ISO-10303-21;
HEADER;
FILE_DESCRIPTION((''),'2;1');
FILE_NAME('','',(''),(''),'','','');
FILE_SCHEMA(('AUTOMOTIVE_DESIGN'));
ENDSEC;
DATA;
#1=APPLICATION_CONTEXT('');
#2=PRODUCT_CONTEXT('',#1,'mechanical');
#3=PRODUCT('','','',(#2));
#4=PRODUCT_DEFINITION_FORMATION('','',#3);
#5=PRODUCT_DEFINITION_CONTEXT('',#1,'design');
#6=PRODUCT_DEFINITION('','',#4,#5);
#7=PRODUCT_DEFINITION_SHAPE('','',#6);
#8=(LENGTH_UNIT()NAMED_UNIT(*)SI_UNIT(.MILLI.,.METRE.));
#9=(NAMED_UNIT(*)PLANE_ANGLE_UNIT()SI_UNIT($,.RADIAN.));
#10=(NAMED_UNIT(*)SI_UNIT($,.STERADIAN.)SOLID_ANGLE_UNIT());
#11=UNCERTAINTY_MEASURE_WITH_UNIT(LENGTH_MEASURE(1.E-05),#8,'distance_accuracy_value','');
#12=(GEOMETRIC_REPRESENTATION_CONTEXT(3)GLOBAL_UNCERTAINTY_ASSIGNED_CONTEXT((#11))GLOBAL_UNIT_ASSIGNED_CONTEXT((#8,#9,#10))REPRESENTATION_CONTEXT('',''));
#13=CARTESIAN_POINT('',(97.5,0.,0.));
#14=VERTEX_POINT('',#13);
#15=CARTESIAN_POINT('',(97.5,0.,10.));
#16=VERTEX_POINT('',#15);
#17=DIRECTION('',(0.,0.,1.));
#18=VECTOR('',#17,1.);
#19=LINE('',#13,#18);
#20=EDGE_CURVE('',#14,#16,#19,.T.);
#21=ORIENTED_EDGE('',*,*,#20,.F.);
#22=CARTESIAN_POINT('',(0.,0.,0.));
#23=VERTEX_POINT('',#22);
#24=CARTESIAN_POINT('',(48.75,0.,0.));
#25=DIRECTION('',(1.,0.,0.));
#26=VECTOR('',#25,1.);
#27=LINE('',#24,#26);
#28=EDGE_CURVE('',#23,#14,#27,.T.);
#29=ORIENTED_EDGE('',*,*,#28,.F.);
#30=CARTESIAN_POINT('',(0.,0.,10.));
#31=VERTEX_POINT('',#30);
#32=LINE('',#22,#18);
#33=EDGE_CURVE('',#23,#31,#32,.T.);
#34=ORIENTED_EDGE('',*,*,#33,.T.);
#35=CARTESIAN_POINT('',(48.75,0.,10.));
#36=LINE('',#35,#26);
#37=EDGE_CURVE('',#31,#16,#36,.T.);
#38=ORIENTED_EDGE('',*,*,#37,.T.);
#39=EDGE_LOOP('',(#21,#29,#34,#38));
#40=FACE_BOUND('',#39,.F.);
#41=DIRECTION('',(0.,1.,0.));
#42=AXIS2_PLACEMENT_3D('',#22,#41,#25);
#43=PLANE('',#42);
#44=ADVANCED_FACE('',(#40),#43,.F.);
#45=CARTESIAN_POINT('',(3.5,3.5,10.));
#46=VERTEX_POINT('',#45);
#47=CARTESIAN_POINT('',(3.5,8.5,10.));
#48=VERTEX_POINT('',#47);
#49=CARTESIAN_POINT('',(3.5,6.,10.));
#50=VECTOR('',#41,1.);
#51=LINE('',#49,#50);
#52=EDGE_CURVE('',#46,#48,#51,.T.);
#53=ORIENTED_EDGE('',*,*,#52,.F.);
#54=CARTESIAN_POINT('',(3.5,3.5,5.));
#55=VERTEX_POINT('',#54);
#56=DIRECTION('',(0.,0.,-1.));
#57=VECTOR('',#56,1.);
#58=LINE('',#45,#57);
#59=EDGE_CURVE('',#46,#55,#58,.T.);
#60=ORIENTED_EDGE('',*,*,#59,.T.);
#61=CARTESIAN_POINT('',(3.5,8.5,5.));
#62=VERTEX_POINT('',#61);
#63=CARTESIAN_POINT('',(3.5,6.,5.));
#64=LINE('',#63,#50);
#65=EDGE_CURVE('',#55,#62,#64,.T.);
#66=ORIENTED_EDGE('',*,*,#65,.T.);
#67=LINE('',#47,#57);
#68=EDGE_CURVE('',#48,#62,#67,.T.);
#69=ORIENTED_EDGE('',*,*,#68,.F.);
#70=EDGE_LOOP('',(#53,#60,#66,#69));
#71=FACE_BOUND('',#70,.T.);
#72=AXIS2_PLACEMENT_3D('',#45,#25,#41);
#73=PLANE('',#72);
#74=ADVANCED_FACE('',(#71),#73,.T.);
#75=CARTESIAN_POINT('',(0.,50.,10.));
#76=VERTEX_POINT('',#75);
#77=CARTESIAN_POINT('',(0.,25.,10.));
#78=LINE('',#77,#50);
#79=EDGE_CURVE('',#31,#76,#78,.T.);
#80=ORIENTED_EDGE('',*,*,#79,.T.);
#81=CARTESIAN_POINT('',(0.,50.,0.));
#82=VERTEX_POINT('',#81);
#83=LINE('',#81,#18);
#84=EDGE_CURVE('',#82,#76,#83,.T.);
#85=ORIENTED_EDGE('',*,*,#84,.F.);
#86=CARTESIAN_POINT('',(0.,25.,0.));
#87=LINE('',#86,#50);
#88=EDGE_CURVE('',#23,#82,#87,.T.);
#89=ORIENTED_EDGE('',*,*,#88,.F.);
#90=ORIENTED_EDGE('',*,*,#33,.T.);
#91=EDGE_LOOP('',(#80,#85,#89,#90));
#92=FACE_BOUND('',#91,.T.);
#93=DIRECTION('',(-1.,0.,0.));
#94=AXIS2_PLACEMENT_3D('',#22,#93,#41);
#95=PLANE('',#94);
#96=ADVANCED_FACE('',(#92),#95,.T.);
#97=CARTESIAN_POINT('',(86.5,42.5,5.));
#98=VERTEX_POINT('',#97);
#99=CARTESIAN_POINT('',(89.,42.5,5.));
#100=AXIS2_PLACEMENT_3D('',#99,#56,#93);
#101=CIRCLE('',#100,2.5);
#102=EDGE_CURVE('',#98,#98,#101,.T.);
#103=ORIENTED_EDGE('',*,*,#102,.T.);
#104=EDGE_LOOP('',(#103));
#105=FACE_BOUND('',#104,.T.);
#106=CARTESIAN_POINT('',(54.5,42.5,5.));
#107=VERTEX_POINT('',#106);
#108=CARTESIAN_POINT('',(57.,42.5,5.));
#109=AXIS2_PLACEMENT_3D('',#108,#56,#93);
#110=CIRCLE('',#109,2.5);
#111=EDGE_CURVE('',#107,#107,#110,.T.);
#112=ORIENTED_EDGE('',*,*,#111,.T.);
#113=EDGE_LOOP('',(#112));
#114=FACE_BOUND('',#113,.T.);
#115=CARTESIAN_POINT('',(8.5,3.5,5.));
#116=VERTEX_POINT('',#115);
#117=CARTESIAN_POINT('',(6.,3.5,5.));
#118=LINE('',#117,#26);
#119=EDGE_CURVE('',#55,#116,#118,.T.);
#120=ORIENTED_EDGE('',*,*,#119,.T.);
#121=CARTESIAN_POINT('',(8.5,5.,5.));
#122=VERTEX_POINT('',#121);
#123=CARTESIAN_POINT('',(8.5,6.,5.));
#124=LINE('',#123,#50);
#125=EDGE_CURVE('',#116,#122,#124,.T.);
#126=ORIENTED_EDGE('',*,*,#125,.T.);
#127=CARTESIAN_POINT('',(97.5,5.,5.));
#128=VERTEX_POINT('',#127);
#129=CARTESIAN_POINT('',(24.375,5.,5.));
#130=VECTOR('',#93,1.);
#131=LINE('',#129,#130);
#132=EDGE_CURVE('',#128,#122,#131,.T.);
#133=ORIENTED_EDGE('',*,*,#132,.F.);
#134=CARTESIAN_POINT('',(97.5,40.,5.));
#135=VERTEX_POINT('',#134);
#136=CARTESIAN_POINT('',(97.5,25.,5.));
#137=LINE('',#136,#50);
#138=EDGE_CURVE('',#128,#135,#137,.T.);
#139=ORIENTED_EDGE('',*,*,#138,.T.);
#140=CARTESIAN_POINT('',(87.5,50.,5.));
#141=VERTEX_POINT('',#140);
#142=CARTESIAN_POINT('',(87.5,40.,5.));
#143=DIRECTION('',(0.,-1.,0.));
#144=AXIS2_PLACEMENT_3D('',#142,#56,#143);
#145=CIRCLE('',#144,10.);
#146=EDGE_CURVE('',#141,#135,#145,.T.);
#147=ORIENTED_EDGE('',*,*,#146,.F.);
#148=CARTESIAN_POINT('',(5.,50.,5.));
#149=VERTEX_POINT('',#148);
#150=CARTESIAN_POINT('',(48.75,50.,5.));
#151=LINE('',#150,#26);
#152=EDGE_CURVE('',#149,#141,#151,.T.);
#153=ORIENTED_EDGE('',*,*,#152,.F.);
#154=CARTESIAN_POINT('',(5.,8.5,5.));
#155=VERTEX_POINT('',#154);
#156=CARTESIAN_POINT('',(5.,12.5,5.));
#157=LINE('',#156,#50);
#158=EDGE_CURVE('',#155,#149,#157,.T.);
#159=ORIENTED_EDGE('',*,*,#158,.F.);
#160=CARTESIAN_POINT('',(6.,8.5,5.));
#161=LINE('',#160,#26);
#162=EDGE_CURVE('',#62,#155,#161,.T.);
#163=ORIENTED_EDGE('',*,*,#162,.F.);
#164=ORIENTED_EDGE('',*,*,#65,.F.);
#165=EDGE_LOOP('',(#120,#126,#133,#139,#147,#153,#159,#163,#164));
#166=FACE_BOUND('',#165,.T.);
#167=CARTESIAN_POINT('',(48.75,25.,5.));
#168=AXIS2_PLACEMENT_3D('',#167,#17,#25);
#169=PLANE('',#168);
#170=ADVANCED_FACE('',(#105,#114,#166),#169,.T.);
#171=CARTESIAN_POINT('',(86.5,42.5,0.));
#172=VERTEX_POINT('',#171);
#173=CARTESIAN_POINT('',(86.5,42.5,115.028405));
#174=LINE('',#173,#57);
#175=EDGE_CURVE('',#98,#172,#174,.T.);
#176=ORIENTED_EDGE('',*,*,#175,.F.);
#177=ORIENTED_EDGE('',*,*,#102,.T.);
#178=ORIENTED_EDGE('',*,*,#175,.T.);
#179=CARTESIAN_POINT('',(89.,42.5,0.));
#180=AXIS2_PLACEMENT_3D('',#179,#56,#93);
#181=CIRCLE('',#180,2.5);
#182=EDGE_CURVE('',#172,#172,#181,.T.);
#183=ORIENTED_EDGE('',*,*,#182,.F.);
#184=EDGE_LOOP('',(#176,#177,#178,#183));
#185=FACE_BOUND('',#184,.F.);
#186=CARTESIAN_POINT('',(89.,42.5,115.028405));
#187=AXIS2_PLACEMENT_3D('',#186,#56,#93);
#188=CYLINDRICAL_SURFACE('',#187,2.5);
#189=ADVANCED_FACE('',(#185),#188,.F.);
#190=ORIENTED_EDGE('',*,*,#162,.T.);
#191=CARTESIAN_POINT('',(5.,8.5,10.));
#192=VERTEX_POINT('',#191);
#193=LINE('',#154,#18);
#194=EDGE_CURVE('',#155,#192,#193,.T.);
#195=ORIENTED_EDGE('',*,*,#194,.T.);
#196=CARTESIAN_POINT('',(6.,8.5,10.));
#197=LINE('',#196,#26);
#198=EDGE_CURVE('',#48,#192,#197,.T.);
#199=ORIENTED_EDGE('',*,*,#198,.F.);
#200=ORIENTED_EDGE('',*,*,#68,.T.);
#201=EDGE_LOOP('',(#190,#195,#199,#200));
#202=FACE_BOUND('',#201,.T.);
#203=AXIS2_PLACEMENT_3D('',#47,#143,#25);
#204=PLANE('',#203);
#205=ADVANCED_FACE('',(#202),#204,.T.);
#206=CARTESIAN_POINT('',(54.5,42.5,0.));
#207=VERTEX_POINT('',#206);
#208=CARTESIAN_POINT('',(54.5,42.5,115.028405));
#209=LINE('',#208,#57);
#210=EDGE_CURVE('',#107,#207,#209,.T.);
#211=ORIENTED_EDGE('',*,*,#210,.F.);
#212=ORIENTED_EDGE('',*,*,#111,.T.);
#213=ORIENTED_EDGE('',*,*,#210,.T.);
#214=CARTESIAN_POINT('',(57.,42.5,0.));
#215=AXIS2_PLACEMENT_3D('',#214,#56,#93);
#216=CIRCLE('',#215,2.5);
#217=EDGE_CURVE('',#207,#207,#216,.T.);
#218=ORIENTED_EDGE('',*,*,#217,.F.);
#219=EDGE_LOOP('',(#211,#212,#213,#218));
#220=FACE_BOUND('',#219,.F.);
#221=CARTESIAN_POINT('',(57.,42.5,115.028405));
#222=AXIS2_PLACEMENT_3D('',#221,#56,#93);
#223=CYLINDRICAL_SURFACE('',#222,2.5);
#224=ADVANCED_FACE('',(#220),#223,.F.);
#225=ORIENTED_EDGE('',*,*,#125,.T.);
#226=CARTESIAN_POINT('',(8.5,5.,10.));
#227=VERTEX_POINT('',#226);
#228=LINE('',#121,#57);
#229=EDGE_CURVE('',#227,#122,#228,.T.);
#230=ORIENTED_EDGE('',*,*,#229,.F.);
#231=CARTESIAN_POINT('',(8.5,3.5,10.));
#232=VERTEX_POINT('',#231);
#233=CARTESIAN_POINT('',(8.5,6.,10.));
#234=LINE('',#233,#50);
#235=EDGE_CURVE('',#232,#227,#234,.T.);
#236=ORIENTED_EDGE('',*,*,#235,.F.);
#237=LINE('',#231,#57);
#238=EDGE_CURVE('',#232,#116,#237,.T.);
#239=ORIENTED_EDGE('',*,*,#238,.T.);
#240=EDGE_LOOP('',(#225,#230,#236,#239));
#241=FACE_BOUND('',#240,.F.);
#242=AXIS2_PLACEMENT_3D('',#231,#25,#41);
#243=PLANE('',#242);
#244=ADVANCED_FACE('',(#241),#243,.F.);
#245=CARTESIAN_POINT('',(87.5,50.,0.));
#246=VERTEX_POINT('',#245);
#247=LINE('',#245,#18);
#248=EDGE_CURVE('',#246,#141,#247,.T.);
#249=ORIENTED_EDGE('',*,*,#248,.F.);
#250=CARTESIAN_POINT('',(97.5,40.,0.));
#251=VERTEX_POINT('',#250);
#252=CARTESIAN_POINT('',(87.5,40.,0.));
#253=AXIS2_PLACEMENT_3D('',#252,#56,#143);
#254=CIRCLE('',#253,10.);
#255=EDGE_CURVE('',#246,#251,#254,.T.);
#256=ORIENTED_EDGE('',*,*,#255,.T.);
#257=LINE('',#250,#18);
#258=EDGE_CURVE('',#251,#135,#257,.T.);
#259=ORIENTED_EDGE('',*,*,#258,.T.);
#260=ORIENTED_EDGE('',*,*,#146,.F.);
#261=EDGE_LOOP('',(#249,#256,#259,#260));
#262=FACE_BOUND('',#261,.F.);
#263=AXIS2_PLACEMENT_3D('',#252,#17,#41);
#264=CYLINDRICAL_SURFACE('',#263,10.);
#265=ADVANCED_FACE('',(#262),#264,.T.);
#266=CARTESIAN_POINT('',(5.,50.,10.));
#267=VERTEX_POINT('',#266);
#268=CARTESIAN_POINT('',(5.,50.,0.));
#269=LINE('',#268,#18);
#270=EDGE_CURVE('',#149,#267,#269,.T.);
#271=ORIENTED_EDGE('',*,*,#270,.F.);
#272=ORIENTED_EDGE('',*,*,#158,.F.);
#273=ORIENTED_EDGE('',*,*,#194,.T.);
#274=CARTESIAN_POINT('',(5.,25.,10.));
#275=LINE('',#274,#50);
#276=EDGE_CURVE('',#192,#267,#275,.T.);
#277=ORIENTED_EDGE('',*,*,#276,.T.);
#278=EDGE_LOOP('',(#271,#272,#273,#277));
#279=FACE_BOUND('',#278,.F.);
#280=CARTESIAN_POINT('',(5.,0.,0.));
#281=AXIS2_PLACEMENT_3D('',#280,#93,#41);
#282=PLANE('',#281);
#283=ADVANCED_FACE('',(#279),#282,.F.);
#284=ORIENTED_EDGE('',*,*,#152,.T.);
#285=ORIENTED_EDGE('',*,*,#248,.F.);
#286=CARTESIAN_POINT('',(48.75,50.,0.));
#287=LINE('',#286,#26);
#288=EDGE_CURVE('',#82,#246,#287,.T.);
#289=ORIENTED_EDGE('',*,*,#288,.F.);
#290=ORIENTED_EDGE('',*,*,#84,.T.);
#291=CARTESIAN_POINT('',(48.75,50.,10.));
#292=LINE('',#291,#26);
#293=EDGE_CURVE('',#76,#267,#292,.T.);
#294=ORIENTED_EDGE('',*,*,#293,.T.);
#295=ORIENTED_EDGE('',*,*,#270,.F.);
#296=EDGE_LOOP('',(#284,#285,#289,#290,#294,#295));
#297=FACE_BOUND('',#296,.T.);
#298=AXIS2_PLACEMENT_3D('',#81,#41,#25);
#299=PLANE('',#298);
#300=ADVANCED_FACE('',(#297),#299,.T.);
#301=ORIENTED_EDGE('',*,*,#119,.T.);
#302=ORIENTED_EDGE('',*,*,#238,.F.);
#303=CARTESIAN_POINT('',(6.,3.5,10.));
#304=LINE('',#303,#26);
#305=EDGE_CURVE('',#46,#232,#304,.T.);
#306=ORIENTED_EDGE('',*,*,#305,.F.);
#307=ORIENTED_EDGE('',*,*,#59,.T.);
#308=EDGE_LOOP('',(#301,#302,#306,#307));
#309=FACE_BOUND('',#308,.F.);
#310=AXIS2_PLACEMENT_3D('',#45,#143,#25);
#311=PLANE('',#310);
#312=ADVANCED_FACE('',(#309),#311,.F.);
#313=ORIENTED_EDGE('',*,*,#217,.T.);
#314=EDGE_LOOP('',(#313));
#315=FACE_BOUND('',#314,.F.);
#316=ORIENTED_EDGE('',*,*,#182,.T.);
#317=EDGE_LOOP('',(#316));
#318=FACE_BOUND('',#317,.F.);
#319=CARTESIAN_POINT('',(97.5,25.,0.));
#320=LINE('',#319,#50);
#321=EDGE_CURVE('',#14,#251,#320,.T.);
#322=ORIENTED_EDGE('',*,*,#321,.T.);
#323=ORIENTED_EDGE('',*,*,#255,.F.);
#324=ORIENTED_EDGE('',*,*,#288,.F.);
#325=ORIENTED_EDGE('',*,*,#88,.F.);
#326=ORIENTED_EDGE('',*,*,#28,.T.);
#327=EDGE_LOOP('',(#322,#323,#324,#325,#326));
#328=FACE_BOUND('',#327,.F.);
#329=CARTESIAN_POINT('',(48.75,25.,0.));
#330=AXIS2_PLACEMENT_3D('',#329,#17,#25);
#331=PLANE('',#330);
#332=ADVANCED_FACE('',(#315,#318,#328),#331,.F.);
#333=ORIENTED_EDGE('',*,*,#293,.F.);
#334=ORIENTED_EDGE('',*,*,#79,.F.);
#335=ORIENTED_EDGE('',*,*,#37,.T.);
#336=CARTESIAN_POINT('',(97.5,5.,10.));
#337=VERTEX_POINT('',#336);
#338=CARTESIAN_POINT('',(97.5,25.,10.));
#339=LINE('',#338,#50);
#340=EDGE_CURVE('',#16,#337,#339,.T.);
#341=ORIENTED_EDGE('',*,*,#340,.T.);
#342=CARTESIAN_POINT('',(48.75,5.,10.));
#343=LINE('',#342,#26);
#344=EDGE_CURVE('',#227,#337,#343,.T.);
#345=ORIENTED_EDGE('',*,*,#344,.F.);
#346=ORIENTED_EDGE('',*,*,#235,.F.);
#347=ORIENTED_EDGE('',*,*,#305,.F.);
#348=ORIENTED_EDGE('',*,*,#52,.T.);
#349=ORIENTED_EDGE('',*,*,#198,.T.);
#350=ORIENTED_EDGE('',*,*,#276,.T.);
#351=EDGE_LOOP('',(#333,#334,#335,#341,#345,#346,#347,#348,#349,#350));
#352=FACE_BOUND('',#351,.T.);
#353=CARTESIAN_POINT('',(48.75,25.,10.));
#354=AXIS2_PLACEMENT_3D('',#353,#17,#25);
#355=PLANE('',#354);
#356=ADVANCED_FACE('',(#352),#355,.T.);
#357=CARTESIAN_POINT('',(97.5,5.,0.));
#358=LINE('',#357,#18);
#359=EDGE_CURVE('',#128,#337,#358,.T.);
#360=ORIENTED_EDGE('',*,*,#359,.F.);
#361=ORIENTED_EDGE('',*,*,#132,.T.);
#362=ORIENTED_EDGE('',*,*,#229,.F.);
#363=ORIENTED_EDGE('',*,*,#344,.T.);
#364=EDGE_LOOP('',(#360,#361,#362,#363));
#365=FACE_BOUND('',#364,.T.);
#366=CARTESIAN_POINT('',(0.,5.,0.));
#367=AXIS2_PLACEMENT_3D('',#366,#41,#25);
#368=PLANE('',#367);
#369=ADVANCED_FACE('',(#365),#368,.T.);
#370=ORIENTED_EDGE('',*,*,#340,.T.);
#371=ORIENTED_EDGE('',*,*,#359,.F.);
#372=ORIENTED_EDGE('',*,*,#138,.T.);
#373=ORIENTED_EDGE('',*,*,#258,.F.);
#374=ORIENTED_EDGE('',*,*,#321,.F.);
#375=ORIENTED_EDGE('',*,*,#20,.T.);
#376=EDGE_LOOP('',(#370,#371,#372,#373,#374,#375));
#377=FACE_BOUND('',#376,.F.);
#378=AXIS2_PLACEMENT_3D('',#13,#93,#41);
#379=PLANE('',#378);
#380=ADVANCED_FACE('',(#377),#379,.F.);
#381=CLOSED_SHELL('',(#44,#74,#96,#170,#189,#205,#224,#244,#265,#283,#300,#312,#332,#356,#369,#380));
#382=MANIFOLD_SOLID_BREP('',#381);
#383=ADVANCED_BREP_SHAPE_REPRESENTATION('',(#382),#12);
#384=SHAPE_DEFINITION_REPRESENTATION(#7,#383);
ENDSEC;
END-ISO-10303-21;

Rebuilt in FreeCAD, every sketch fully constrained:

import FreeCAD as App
import Part
import Sketcher
from FreeCAD import Vector


def edges_at(feature, points):
    """Names of the edges that pass closest to the given points."""
    edges = feature.Shape.Edges
    near = lambda p: min(range(len(edges)), key=lambda i: edges[i].distToShape(Part.Vertex(*p))[0])
    return sorted({f"Edge{near(p) + 1}" for p in points})


def faces_at(feature, points):
    """Names of the faces that lie closest to the given points."""
    faces = feature.Shape.Faces
    near = lambda p: min(range(len(faces)), key=lambda i: faces[i].distToShape(Part.Vertex(*p))[0])
    return sorted({f"Face{near(p) + 1}" for p in points})

doc = App.newDocument("Part")
params = doc.addObject("Spreadsheet::Sheet", "Params")
for row, (alias, value) in enumerate([
    ("sketch1_height", "50 mm"),
    ("sketch1_width", "97.5 mm"),
    ("pad1_length", "10 mm"),
    ("thickness_wall", "5 mm"),
    ("sketch2_width", "5 mm"),
    ("pocket1_length", "5 mm"),
    ("sketch3_diameter", "5 mm"),
    ("hole_diameter", "5 mm"),
    ("fillet_radius", "10 mm"),
], start=1):
    params.set(f"A{row}", alias)
    params.set(f"B{row}", "=" + value)
    params.setAlias(f"B{row}", alias)

body = doc.addObject("PartDesign::Body", "Body")

sketch1 = body.newObject("Sketcher::SketchObject", "Sketch")
sketch1.AttachmentSupport = (doc.getObject("XY_Plane"), [""])
sketch1.MapMode = "FlatFace"
sketch1.addGeometry([
    Part.LineSegment(Vector(0, 50, 0), Vector(0, 0, 0)),
    Part.LineSegment(Vector(0, 0, 0), Vector(98, 0, 0)),
    Part.LineSegment(Vector(98, 0, 0), Vector(98, 50, 0)),
    Part.LineSegment(Vector(98, 50, 0), Vector(0, 50, 0)),
], False)
sketch1.addConstraint([
    Sketcher.Constraint("Coincident", 0, 2, 1, 1),
    Sketcher.Constraint("Coincident", 1, 2, 2, 1),
    Sketcher.Constraint("Coincident", 2, 2, 3, 1),
    Sketcher.Constraint("Coincident", 3, 2, 0, 1),
    Sketcher.Constraint("Vertical", 0),
    Sketcher.Constraint("Horizontal", 1),
    Sketcher.Constraint("Vertical", 2),
    Sketcher.Constraint("Horizontal", 3),
    Sketcher.Constraint("Coincident", 0, 2, -1, 1),
    Sketcher.Constraint("DistanceY", 0, 2, 0, 1, 50.0),
    Sketcher.Constraint("DistanceX", 1, 1, 1, 2, 97.5),
])
sketch1.setExpression("Constraints[9]", "Params.sketch1_height")
sketch1.setExpression("Constraints[10]", "Params.sketch1_width")
pad1 = body.newObject("PartDesign::Pad", "Pad")
pad1.Profile = sketch1
pad1.setExpression("Length", "Params.pad1_length")
doc.recompute()

thickness = body.newObject("PartDesign::Thickness", "Thickness")
thickness.Base = (pad1, faces_at(pad1, [(97.5, 25, 5), (48.75, 50, 5), (48.75, 25, 10)]))
thickness.setExpression("Value", "Params.thickness_wall")
thickness.Reversed = True
thickness.Join = "Arc"

sketch2 = body.newObject("Sketcher::SketchObject", "Sketch001")
sketch2.AttachmentSupport = (doc.getObject("XY_Plane"), [""])
sketch2.MapMode = "FlatFace"
sketch2.AttachmentOffset = App.Placement(Vector(0, 0, 10), App.Rotation())
sketch2.addGeometry([
    Part.LineSegment(Vector(4, 8, 0), Vector(4, 4, 0)),
    Part.LineSegment(Vector(4, 4, 0), Vector(8, 4, 0)),
    Part.LineSegment(Vector(8, 4, 0), Vector(8, 8, 0)),
    Part.LineSegment(Vector(8, 8, 0), Vector(4, 8, 0)),
], False)
sketch2.addConstraint([
    Sketcher.Constraint("Coincident", 0, 2, 1, 1),
    Sketcher.Constraint("Coincident", 1, 2, 2, 1),
    Sketcher.Constraint("Coincident", 2, 2, 3, 1),
    Sketcher.Constraint("Coincident", 3, 2, 0, 1),
    Sketcher.Constraint("Vertical", 0),
    Sketcher.Constraint("Horizontal", 1),
    Sketcher.Constraint("Vertical", 2),
    Sketcher.Constraint("Horizontal", 3),
    Sketcher.Constraint("Equal", 3, 0),
    Sketcher.Constraint("DistanceX", 1, 1, 1, 2, 5.0),
    Sketcher.Constraint("DistanceX", -1, 1, 0, 2, 3.5),
    Sketcher.Constraint("DistanceY", -1, 1, 0, 2, 3.5),
])
sketch2.setExpression("Constraints[9]", "Params.sketch2_width")
pocket1 = body.newObject("PartDesign::Pocket", "Pocket")
pocket1.Profile = sketch2
pocket1.setExpression("Length", "Params.pocket1_length")

sketch3 = body.newObject("Sketcher::SketchObject", "Sketch002")
sketch3.AttachmentSupport = (doc.getObject("XY_Plane"), [""])
sketch3.MapMode = "FlatFace"
sketch3.AttachmentOffset = App.Placement(Vector(0, 0, 5), App.Rotation())
sketch3.addGeometry([
    Part.Circle(Vector(57, 42.5, 0), Vector(0, 0, 1), 2.5),
    Part.Circle(Vector(89, 42.5, 0), Vector(0, 0, 1), 2.5),
], False)
sketch3.addConstraint([
    Sketcher.Constraint("Equal", 0, 1),
    Sketcher.Constraint("Horizontal", 0, 3, 1, 3),
    Sketcher.Constraint("Diameter", 0, 5.0),
    Sketcher.Constraint("DistanceX", -1, 1, 0, 3, 57.0),
    Sketcher.Constraint("DistanceX", -1, 1, 1, 3, 89.0),
    Sketcher.Constraint("DistanceY", -1, 1, 0, 3, 42.5),
])
sketch3.setExpression("Constraints[2]", "Params.sketch3_diameter")
doc.recompute()
hole = body.newObject("PartDesign::Hole", "Hole")
hole.Profile = sketch3
hole.ThreadType = "None"
hole.setExpression("Diameter", "Params.hole_diameter")
hole.DepthType = "ThroughAll"
doc.recompute()

fillet = body.newObject("PartDesign::Fillet", "Fillet")
fillet.Base = (hole, edges_at(hole, [(97.5, 50, 2.5)]))
fillet.setExpression("Radius", "Params.fillet_radius")

doc.recompute()
